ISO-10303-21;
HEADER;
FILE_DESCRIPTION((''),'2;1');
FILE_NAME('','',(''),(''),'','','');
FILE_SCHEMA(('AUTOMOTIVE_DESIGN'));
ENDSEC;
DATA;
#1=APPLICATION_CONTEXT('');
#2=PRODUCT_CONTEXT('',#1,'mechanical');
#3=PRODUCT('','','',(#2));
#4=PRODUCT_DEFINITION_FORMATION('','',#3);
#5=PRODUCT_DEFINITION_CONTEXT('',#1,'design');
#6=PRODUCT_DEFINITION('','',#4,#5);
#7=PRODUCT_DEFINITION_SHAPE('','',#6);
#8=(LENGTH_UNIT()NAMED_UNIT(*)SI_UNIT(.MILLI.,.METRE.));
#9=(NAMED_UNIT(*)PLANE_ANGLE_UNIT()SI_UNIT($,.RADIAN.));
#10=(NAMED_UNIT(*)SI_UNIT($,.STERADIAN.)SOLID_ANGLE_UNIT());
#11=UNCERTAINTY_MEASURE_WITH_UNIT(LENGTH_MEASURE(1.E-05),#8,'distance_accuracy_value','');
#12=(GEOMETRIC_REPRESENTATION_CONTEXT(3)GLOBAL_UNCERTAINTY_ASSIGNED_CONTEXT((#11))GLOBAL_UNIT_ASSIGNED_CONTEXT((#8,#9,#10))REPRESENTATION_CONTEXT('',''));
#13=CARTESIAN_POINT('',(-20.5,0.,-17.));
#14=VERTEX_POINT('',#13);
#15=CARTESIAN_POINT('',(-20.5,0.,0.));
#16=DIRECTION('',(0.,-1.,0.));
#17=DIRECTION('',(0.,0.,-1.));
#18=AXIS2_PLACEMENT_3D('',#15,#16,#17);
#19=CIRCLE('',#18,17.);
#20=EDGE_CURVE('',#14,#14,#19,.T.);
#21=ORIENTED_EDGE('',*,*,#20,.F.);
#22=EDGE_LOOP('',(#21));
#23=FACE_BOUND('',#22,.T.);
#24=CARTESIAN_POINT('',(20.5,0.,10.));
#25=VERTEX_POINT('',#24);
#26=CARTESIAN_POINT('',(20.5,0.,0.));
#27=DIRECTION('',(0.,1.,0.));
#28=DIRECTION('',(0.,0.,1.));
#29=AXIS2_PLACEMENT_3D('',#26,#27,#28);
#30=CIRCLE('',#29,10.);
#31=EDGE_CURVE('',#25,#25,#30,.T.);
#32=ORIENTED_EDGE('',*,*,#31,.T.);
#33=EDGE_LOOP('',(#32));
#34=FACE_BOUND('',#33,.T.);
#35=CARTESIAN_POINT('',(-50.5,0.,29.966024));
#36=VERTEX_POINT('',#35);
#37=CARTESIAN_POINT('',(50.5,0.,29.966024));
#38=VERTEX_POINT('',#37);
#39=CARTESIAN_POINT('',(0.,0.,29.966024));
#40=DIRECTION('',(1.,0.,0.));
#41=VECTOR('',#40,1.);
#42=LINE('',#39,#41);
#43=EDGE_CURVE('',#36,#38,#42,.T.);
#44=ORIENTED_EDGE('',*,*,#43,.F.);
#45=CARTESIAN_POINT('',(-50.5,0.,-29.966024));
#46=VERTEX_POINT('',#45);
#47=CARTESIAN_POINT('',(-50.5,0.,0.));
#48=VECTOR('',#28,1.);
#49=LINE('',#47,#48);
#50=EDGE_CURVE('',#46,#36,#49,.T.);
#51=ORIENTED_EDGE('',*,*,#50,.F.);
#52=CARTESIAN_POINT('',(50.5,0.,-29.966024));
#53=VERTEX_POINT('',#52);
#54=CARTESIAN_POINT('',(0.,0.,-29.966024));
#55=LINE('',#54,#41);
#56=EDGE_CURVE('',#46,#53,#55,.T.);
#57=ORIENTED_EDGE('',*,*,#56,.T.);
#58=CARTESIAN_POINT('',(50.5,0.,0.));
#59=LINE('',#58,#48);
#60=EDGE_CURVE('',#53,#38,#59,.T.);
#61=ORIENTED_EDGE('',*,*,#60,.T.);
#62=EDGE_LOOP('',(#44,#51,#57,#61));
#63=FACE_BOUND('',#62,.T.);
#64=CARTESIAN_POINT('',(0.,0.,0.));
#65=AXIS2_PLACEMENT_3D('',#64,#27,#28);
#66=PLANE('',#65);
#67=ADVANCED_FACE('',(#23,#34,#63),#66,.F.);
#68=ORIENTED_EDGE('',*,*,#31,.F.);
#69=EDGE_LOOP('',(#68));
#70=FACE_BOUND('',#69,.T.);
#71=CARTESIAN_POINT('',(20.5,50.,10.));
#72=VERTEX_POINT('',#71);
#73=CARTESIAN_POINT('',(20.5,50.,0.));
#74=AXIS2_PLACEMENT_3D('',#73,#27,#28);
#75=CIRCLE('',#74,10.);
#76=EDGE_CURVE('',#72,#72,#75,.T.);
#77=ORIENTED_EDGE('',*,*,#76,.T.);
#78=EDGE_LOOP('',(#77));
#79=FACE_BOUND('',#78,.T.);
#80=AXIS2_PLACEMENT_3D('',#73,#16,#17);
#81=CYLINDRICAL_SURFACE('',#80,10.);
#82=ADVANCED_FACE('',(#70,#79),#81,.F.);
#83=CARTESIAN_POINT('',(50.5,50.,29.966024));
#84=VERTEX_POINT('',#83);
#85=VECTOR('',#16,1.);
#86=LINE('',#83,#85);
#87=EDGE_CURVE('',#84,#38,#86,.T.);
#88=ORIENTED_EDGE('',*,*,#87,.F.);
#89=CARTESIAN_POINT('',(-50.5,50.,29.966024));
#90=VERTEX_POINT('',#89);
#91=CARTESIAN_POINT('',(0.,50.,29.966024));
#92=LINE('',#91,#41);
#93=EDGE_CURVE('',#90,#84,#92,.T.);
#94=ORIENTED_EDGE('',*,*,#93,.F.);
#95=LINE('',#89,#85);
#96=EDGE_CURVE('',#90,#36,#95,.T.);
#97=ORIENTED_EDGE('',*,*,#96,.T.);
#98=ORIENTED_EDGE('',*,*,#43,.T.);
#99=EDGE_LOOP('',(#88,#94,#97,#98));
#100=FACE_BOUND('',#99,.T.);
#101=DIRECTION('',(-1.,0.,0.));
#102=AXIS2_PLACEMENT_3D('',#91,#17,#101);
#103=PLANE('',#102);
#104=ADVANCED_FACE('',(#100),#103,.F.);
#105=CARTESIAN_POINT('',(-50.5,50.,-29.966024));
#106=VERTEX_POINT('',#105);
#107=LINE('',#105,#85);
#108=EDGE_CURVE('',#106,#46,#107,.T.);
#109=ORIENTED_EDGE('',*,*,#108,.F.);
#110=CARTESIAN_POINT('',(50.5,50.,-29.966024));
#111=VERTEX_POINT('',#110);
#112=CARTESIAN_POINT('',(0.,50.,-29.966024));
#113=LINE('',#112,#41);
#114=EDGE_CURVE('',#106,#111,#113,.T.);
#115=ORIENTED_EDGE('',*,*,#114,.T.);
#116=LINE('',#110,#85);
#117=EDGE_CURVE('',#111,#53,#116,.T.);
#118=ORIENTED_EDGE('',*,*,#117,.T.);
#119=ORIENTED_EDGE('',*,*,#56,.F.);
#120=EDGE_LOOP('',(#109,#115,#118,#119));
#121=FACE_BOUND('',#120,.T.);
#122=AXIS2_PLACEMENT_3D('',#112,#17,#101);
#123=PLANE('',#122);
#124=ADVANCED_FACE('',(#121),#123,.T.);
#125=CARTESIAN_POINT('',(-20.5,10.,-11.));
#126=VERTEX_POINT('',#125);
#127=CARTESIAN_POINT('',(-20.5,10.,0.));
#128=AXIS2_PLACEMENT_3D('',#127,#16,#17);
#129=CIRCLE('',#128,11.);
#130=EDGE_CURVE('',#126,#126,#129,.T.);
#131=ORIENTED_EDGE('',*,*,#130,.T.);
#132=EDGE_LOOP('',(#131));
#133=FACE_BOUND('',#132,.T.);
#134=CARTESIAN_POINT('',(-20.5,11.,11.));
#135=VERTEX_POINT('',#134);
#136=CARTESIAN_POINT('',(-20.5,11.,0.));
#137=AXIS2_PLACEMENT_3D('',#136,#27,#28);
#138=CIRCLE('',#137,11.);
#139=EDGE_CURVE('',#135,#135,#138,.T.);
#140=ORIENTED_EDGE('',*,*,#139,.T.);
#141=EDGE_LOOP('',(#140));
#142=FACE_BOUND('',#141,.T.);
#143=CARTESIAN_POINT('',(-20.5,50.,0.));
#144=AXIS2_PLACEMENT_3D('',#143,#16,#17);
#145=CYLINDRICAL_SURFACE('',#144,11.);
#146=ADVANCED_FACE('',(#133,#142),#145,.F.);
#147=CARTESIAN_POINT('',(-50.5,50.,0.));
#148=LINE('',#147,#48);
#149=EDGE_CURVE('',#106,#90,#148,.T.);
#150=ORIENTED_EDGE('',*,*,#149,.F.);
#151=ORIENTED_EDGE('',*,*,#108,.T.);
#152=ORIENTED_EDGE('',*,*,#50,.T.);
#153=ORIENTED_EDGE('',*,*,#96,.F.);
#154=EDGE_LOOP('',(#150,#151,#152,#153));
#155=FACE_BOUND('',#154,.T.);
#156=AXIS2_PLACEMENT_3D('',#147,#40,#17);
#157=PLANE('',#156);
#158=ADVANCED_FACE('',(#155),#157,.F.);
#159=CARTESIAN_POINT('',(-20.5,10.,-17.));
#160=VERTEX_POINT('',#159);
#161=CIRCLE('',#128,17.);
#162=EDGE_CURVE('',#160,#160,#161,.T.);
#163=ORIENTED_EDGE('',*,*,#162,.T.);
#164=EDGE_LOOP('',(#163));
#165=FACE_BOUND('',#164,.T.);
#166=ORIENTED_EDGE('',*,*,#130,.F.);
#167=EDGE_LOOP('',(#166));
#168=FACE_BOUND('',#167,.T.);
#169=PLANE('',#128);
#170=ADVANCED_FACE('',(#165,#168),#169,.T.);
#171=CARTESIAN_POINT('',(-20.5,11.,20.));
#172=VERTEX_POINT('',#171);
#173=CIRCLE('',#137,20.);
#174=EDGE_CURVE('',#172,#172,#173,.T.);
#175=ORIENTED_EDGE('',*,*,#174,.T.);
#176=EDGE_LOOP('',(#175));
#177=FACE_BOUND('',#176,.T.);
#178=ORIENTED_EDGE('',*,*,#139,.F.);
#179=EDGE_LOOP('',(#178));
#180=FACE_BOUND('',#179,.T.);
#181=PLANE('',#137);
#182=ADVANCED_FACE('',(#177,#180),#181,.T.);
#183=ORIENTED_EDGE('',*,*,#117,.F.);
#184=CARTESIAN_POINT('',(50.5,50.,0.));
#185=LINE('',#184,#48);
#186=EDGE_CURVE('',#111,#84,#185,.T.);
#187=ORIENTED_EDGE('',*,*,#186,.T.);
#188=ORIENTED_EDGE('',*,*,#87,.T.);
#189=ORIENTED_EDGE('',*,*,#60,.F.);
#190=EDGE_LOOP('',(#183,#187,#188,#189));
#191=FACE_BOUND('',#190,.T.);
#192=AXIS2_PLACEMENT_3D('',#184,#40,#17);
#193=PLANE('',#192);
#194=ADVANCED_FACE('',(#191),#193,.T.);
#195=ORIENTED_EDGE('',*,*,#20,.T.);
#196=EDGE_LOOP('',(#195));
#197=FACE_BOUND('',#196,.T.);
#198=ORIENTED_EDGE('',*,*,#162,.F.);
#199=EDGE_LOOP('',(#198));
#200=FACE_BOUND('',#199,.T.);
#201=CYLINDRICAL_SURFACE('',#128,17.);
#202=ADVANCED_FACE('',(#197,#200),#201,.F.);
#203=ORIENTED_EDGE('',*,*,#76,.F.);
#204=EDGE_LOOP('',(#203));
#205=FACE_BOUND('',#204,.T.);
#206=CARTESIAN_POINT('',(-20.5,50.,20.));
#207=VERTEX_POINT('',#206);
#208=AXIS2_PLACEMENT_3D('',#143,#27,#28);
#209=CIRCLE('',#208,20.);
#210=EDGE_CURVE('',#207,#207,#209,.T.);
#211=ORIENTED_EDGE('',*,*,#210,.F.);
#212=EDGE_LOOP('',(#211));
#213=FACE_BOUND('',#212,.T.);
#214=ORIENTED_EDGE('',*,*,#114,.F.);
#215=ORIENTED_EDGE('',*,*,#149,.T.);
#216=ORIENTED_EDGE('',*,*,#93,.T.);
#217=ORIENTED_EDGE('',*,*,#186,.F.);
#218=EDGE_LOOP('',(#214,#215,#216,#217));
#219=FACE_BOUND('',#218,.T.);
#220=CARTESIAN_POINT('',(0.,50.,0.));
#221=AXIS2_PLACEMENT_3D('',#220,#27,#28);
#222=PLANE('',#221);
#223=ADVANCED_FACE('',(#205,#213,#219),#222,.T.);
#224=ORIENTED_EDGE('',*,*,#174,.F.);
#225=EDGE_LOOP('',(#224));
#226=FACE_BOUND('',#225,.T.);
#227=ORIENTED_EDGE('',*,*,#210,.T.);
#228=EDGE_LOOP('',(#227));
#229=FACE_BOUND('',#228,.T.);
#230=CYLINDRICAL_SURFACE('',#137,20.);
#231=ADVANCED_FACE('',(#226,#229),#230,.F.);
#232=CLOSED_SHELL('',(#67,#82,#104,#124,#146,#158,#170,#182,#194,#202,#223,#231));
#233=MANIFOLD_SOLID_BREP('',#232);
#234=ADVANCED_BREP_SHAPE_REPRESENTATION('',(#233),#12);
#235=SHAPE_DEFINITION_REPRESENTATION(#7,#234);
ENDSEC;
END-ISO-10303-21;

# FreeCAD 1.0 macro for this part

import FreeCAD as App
import Part
import Sketcher

V = App.Vector

doc = App.newDocument("Part")
body = doc.addObject("PartDesign::Body", "Body")

sketch1 = body.newObject("Sketcher::SketchObject", "Sketch")
sketch1.AttachmentSupport = (doc.getObject("XZ_Plane"), [""])
sketch1.MapMode = "FlatFace"
sketch1.addGeometry([
    Part.LineSegment(V(-50.5, -29.966024, 0), V(-50.5, 29.966024, 0)),
    Part.LineSegment(V(-50.5, 29.966024, 0), V(50.5, 29.966024, 0)),
    Part.LineSegment(V(50.5, 29.966024, 0), V(50.5, -29.966024, 0)),
    Part.LineSegment(V(50.5, -29.966024, 0), V(-50.5, -29.966024, 0)),
    Part.Circle(V(-20.5, 0, 0), V(0, 0, 1), 11),
    Part.Circle(V(20.5, 0, 0), V(0, 0, 1), 10),
], False)
sketch1.addConstraint([
    Sketcher.Constraint("Coincident", 0, 2, 1, 1),
    Sketcher.Constraint("Coincident", 1, 2, 2, 1),
    Sketcher.Constraint("Coincident", 2, 2, 3, 1),
    Sketcher.Constraint("Coincident", 3, 2, 0, 1),
    Sketcher.Constraint("Vertical", 0),
    Sketcher.Constraint("Horizontal", 1),
    Sketcher.Constraint("Vertical", 2),
    Sketcher.Constraint("Horizontal", 3),
    Sketcher.Constraint("Symmetric", 4, 3, 5, 3, -1, 1),
    Sketcher.Constraint("Symmetric", 0, 2, 2, 2, -1, 1),
    Sketcher.Constraint("PointOnObject", 4, 3, -1),
    Sketcher.Constraint("Diameter", 4, 22.0),
    Sketcher.Constraint("Diameter", 5, 20.0),
    Sketcher.Constraint("DistanceX", 1, 1, 1, 2, 101.0),
    Sketcher.Constraint("DistanceX", 4, 3, 5, 3, 41.0),
    Sketcher.Constraint("DistanceY", 0, 1, 0, 2, 59.932048),
])
pad1 = body.newObject("PartDesign::Pad", "Pad")
pad1.Profile = sketch1
pad1.Length = 50
pad1.Reversed = True

sketch2 = body.newObject("Sketcher::SketchObject", "Sketch001")
sketch2.AttachmentSupport = (doc.getObject("XZ_Plane"), [""])
sketch2.MapMode = "FlatFace"
sketch2.addGeometry(Part.Circle(V(-20.5, 0, 0), V(0, 0, 1), 17), False)
sketch2.addConstraint([
    Sketcher.Constraint("PointOnObject", 0, 3, -1),
    Sketcher.Constraint("Diameter", 0, 34.0),
    Sketcher.Constraint("DistanceX", 0, 3, -1, 1, 20.5),
])
pocket1 = body.newObject("PartDesign::Pocket", "Pocket")
pocket1.Profile = sketch2
pocket1.Length = 10

sketch3 = body.newObject("Sketcher::SketchObject", "Sketch002")
sketch3.AttachmentSupport = (doc.getObject("XZ_Plane"), [""])
sketch3.MapMode = "FlatFace"
sketch3.AttachmentOffset = App.Placement(V(0, 0, -50), App.Rotation())
sketch3.addGeometry(Part.Circle(V(-20.5, 0, 0), V(0, 0, 1), 20), False)
sketch3.addConstraint([
    Sketcher.Constraint("PointOnObject", 0, 3, -1),
    Sketcher.Constraint("Diameter", 0, 40.0),
    Sketcher.Constraint("DistanceX", 0, 3, -1, 1, 20.5),
])
pocket2 = body.newObject("PartDesign::Pocket", "Pocket001")
pocket2.Profile = sketch3
pocket2.Length = 39
pocket2.Reversed = True

doc.recompute()
